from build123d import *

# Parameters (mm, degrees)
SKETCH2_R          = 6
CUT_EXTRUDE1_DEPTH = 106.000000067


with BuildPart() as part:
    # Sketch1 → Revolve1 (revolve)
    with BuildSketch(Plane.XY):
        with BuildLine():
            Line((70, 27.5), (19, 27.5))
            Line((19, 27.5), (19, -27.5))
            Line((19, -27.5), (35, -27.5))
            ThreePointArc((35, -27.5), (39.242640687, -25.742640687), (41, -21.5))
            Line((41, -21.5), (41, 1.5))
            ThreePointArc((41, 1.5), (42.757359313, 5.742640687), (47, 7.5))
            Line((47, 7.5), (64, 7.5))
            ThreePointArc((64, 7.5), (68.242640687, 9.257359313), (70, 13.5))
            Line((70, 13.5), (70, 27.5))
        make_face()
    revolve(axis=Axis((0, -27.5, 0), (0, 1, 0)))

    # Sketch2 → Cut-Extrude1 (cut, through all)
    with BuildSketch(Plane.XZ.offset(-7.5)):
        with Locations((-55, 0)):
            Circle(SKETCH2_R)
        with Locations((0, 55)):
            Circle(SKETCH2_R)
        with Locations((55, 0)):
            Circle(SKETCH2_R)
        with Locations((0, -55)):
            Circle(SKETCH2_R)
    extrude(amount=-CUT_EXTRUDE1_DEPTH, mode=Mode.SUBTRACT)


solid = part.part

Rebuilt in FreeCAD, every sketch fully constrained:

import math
import FreeCAD as App
import Part
import Sketcher

V = App.Vector

doc = App.newDocument("Part")
params = doc.addObject("Spreadsheet::Sheet", "Params")
for row, (alias, value) in enumerate([
    ("sketch1_radius", "6 mm"),
    ("sketch1_width", "51 mm"),
    ("sketch1_width2", "16 mm"),
    ("sketch1_height", "55 mm"),
    ("sketch1_height2", "23 mm"),
    ("revolution_angle", "360 deg"),
    ("sketch2_diameter", "12 mm"),
], start=1):
    params.set(f"A{row}", alias)
    params.set(f"B{row}", "=" + value)
    params.setAlias(f"B{row}", alias)

body = doc.addObject("PartDesign::Body", "Body")

sketch1 = body.newObject("Sketcher::SketchObject", "Sketch")
sketch1.AttachmentSupport = (doc.getObject("XY_Plane"), [""])
sketch1.MapMode = "FlatFace"
sketch1.addGeometry([
    Part.LineSegment(V(70, 28, 0), V(19, 28, 0)),
    Part.LineSegment(V(19, 28, 0), V(19, -28, 0)),
    Part.LineSegment(V(19, -28, 0), V(35, -28, 0)),
    Part.ArcOfCircle(Part.Circle(V(35, -22, 0), V(0, 0, 1), 6), math.radians(-90), math.radians(0)),
    Part.LineSegment(V(41, -22, 0), V(41, 2, 0)),
    Part.ArcOfCircle(Part.Circle(V(47, 2, 0), V(0, 0, 1), 6), math.radians(90), math.radians(180)),
    Part.LineSegment(V(47, 8, 0), V(64, 8, 0)),
    Part.ArcOfCircle(Part.Circle(V(64, 14, 0), V(0, 0, 1), 6), math.radians(-90), math.radians(0)),
    Part.LineSegment(V(70, 14, 0), V(70, 28, 0)),
], False)
sketch1.addConstraint([
    Sketcher.Constraint("Coincident", 0, 2, 1, 1),
    Sketcher.Constraint("Coincident", 1, 2, 2, 1),
    Sketcher.Constraint("Tangent", 2, 2, 3, 1),
    Sketcher.Constraint("Tangent", 3, 2, 4, 1),
    Sketcher.Constraint("Tangent", 4, 2, 5, 2),
    Sketcher.Constraint("Tangent", 5, 1, 6, 1),
    Sketcher.Constraint("Tangent", 6, 2, 7, 1),
    Sketcher.Constraint("Tangent", 7, 2, 8, 1),
    Sketcher.Constraint("Coincident", 8, 2, 0, 1),
    Sketcher.Constraint("Horizontal", 0),
    Sketcher.Constraint("Vertical", 1),
    Sketcher.Constraint("Horizontal", 2),
    Sketcher.Constraint("Vertical", 4),
    Sketcher.Constraint("Horizontal", 6),
    Sketcher.Constraint("Vertical", 8),
    Sketcher.Constraint("Equal", 3, 5),
    Sketcher.Constraint("Equal", 5, 7),
    Sketcher.Constraint("Radius", 3, 6.0),
    Sketcher.Constraint("DistanceX", 0, 2, 0, 1, 51.0),
    Sketcher.Constraint("DistanceX", 2, 1, 2, 2, 16.0),
    Sketcher.Constraint("DistanceY", 1, 2, 1, 1, 55.0),
    Sketcher.Constraint("DistanceY", 4, 1, 4, 2, 23.0),
    Sketcher.Constraint("DistanceX", -1, 1, 3, 3, 35.0),
    Sketcher.Constraint("DistanceY", 3, 3, -1, 1, 21.5),
])
sketch1.setExpression("Constraints[17]", "Params.sketch1_radius")
sketch1.setExpression("Constraints[18]", "Params.sketch1_width")
sketch1.setExpression("Constraints[19]", "Params.sketch1_width2")
sketch1.setExpression("Constraints[20]", "Params.sketch1_height")
sketch1.setExpression("Constraints[21]", "Params.sketch1_height2")
revolution = body.newObject("PartDesign::Revolution", "Revolution")
revolution.Profile = sketch1
revolution.ReferenceAxis = (sketch1, ["V_Axis"])
revolution.setExpression("Angle", "Params.revolution_angle")

sketch2 = body.newObject("Sketcher::SketchObject", "Sketch001")
sketch2.AttachmentSupport = (doc.getObject("XZ_Plane"), [""])
sketch2.MapMode = "FlatFace"
sketch2.AttachmentOffset = App.Placement(V(0, 0, -7.5), App.Rotation())
sketch2.addGeometry([
    Part.Circle(V(-55, 0, 0), V(0, 0, 1), 6),
    Part.Circle(V(0, 55, 0), V(0, 0, 1), 6),
    Part.Circle(V(55, 0, 0), V(0, 0, 1), 6),
    Part.Circle(V(0, -55, 0), V(0, 0, 1), 6),
], False)
sketch2.addConstraint([
    Sketcher.Constraint("Equal", 0, 1),
    Sketcher.Constraint("Equal", 1, 2),
    Sketcher.Constraint("Equal", 2, 3),
    Sketcher.Constraint("Symmetric", 0, 3, 2, 3, -1, 1),
    Sketcher.Constraint("Symmetric", 1, 3, 3, 3, -1, 1),
    Sketcher.Constraint("PointOnObject", 0, 3, -1),
    Sketcher.Constraint("PointOnObject", 1, 3, -2),
    Sketcher.Constraint("Diameter", 0, 12.0),
    Sketcher.Constraint("DistanceX", 0, 3, -1, 1, 55.0),
    Sketcher.Constraint("DistanceY", -1, 1, 1, 3, 55.0),
])
sketch2.setExpression("Constraints[7]", "Params.sketch2_diameter")
pocket1 = body.newObject("PartDesign::Pocket", "Pocket")
pocket1.Profile = sketch2
pocket1.Type = "ThroughAll"

doc.recompute()
